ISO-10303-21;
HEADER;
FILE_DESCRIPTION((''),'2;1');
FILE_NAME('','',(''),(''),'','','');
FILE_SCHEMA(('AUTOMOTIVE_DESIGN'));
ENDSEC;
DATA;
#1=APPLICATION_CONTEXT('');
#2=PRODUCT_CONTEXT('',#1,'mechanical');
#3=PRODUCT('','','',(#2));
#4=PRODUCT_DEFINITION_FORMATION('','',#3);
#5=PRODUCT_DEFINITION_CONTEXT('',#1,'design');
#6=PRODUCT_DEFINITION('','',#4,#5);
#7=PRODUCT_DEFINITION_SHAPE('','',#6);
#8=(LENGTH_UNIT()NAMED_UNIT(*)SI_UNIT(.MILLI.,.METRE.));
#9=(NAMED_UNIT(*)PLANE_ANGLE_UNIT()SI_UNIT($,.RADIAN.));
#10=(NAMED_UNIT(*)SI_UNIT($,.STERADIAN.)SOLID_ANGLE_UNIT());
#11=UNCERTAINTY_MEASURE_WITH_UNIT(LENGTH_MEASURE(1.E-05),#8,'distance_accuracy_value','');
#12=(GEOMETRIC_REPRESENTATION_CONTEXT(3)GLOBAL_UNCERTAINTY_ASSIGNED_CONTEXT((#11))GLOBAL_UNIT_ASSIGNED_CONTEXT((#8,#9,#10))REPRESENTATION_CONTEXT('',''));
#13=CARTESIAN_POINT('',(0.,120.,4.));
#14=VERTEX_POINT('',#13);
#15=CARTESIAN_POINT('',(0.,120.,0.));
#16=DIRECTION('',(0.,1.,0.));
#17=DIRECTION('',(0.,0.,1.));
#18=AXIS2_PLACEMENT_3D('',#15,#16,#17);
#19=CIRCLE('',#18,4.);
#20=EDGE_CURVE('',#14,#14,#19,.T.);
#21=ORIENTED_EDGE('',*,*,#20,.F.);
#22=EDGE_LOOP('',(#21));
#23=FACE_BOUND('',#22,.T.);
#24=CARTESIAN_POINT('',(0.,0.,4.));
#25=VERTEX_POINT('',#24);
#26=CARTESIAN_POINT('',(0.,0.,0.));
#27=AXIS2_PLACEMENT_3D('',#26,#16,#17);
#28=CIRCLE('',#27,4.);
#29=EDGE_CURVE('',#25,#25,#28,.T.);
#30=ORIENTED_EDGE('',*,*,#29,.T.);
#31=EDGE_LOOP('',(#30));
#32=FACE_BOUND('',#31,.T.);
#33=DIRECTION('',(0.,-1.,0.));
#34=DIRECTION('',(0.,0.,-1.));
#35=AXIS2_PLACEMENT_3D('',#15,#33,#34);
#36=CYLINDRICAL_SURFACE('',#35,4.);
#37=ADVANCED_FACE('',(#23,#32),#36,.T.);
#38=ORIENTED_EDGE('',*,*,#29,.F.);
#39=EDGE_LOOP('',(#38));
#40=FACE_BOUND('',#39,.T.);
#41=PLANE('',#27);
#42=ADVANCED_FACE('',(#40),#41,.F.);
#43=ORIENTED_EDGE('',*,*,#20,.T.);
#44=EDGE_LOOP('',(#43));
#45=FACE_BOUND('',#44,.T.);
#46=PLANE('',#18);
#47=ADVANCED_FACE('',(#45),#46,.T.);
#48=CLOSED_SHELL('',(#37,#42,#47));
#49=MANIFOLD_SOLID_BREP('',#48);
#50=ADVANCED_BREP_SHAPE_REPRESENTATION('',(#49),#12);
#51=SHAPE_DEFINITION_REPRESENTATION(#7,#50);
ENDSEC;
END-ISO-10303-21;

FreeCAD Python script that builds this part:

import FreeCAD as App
import Part
import Sketcher
from FreeCAD import Vector
Q = App.Units.Quantity

doc = App.newDocument("Part")
params = doc.addObject("Spreadsheet::Sheet", "Params")
for row, (alias, value) in enumerate([
    ("sketch1_diameter", "8 mm"),
    ("pad1_length", "120 mm"),
], start=1):
    params.set(f"A{row}", alias)
    params.set(f"B{row}", "=" + value)
    params.setAlias(f"B{row}", alias)

body = doc.addObject("PartDesign::Body", "Body")

# Sketch on XZ plane
sketch1 = body.newObject("Sketcher::SketchObject", "Sketch")
sketch1.AttachmentSupport = (doc.getObject("XZ_Plane"), [""])
sketch1.MapMode = "FlatFace"
sketch1.addGeometry(Part.Circle(Vector(0, 0, 0), Vector(0, 0, 1), 4), False)
sketch1.addConstraint([
    Sketcher.Constraint("Coincident", 0, 3, -1, 1),
    Sketcher.Constraint("Diameter", 0, Q("8 mm")),
])
sketch1.setExpression("Constraints[1]", "Params.sketch1_diameter")
pad1 = body.newObject("PartDesign::Pad", "Pad")
pad1.Profile = sketch1
pad1.setExpression("Length", "Params.pad1_length")
pad1.Reversed = True

doc.recompute()
